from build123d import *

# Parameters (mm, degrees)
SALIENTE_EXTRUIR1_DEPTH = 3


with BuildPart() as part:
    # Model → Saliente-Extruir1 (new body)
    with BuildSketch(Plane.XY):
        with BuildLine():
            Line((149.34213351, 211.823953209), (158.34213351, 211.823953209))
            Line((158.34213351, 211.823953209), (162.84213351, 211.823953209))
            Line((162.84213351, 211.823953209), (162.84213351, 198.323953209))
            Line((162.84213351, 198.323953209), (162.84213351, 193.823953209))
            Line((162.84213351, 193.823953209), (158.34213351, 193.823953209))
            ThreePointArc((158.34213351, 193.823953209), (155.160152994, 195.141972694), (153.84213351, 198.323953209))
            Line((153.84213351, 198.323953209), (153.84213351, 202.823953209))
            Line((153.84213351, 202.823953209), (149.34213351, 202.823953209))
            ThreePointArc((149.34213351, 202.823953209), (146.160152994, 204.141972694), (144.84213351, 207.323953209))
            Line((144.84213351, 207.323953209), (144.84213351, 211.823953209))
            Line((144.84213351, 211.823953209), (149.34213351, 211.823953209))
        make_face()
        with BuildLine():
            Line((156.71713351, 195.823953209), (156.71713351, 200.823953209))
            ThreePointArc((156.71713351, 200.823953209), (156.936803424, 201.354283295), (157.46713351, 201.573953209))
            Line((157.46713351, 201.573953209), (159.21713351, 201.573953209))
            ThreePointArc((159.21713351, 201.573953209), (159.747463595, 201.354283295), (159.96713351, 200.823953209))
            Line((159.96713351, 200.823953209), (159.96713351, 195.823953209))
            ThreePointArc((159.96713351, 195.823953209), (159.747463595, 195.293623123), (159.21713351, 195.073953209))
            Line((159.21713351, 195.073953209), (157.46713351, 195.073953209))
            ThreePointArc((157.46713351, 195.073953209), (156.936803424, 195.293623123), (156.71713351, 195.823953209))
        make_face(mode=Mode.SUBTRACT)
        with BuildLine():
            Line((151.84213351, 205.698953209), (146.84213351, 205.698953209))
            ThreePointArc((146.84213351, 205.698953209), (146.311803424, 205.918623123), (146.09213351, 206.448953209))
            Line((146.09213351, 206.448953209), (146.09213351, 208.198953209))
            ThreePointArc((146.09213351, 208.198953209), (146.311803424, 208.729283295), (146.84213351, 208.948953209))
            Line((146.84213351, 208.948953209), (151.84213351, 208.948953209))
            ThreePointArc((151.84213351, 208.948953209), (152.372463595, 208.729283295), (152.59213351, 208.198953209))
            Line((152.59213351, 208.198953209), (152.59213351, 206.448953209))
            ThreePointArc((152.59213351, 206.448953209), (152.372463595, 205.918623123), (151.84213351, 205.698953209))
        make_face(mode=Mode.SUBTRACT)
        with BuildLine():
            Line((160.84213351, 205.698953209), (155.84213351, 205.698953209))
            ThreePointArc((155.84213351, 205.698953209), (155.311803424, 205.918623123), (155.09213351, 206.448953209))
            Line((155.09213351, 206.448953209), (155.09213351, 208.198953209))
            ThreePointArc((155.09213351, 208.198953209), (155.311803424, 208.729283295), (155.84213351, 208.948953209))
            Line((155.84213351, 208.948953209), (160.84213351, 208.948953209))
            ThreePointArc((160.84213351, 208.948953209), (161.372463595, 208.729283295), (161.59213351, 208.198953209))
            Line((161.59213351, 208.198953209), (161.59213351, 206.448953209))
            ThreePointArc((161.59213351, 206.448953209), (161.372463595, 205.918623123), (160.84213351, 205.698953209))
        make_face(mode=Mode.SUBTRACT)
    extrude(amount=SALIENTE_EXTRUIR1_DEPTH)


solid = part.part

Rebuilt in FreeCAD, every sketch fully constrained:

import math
import FreeCAD as App
import Part
import Sketcher

V = App.Vector
Q = App.Units.Quantity

doc = App.newDocument("Part")
body = doc.addObject("PartDesign::Body", "Body")

sketch1 = body.newObject("Sketcher::SketchObject", "Sketch")
sketch1.AttachmentSupport = (doc.getObject("XY_Plane"), [""])
sketch1.MapMode = "FlatFace"
sketch1.addGeometry(Part.LineSegment(V(162.8, 193.8, 0), V(162.8, 211.8, 0)), False)
sketch1.addGeometry(Part.LineSegment(V(162.8, 211.8, 0), V(144.8, 211.8, 0)), False)
sketch1.addGeometry(Part.LineSegment(V(144.8, 211.8, 0), V(144.8, 207.3, 0)), False)
sketch1.addGeometry(Part.ArcOfCircle(Part.Circle(V(149.3, 207.3, 0), V(0, 0, 1), 4.5), math.radians(180), math.radians(270)), False)
sketch1.addGeometry(Part.LineSegment(V(149.3, 202.8, 0), V(153.8, 202.8, 0)), False)
sketch1.addGeometry(Part.LineSegment(V(153.8, 202.8, 0), V(153.8, 198.3, 0)), False)
sketch1.addGeometry(Part.ArcOfCircle(Part.Circle(V(158.3, 198.3, 0), V(0, 0, 1), 4.5), math.radians(180), math.radians(270)), False)
sketch1.addGeometry(Part.LineSegment(V(158.3, 193.8, 0), V(162.8, 193.8, 0)), False)
sketch1.addGeometry(Part.LineSegment(V(156.7, 195.8, 0), V(156.7, 200.8, 0)), False)
sketch1.addGeometry(Part.ArcOfCircle(Part.Circle(V(157.5, 200.8, 0), V(0, 0, 1), 0.8), math.radians(90), math.radians(180)), False)
sketch1.addGeometry(Part.LineSegment(V(157.5, 201.6, 0), V(159.2, 201.6, 0)), False)
sketch1.addGeometry(Part.ArcOfCircle(Part.Circle(V(159.2, 200.8, 0), V(0, 0, 1), 0.8), math.radians(0), math.radians(90)), False)
sketch1.addGeometry(Part.LineSegment(V(160, 200.8, 0), V(160, 195.8, 0)), False)
sketch1.addGeometry(Part.ArcOfCircle(Part.Circle(V(159.2, 195.8, 0), V(0, 0, 1), 0.8), math.radians(-90), math.radians(0)), False)
sketch1.addGeometry(Part.LineSegment(V(159.2, 195.1, 0), V(157.5, 195.1, 0)), False)
sketch1.addGeometry(Part.ArcOfCircle(Part.Circle(V(157.5, 195.8, 0), V(0, 0, 1), 0.8), math.radians(180), math.radians(270)), False)
sketch1.addGeometry(Part.LineSegment(V(160.8, 205.7, 0), V(155.8, 205.7, 0)), False)
sketch1.addGeometry(Part.ArcOfCircle(Part.Circle(V(155.8, 206.4, 0), V(0, 0, 1), 0.8), math.radians(180), math.radians(270)), False)
sketch1.addGeometry(Part.LineSegment(V(155.1, 206.4, 0), V(155.1, 208.2, 0)), False)
sketch1.addGeometry(Part.ArcOfCircle(Part.Circle(V(155.8, 208.2, 0), V(0, 0, 1), 0.8), math.radians(90), math.radians(180)), False)
sketch1.addGeometry(Part.LineSegment(V(155.8, 208.9, 0), V(160.8, 208.9, 0)), False)
sketch1.addGeometry(Part.ArcOfCircle(Part.Circle(V(160.8, 208.2, 0), V(0, 0, 1), 0.8), math.radians(0), math.radians(90)), False)
sketch1.addGeometry(Part.LineSegment(V(161.6, 208.2, 0), V(161.6, 206.4, 0)), False)
sketch1.addGeometry(Part.ArcOfCircle(Part.Circle(V(160.8, 206.4, 0), V(0, 0, 1), 0.8), math.radians(-90), math.radians(0)), False)
sketch1.addGeometry(Part.LineSegment(V(151.8, 205.7, 0), V(146.8, 205.7, 0)), False)
sketch1.addGeometry(Part.ArcOfCircle(Part.Circle(V(146.8, 206.4, 0), V(0, 0, 1), 0.8), math.radians(180), math.radians(270)), False)
sketch1.addGeometry(Part.LineSegment(V(146.1, 206.4, 0), V(146.1, 208.2, 0)), False)
sketch1.addGeometry(Part.ArcOfCircle(Part.Circle(V(146.8, 208.2, 0), V(0, 0, 1), 0.8), math.radians(90), math.radians(180)), False)
sketch1.addGeometry(Part.LineSegment(V(146.8, 208.9, 0), V(151.8, 208.9, 0)), False)
sketch1.addGeometry(Part.ArcOfCircle(Part.Circle(V(151.8, 208.2, 0), V(0, 0, 1), 0.8), math.radians(0), math.radians(90)), False)
sketch1.addGeometry(Part.LineSegment(V(152.6, 208.2, 0), V(152.6, 206.4, 0)), False)
sketch1.addGeometry(Part.ArcOfCircle(Part.Circle(V(151.8, 206.4, 0), V(0, 0, 1), 0.8), math.radians(-90), math.radians(0)), False)
sketch1.addConstraint(Sketcher.Constraint("Coincident", 0, 2, 1, 1))
sketch1.addConstraint(Sketcher.Constraint("Coincident", 1, 2, 2, 1))
sketch1.addConstraint(Sketcher.Constraint("Tangent", 2, 2, 3, 1))
sketch1.addConstraint(Sketcher.Constraint("Tangent", 3, 2, 4, 1))
sketch1.addConstraint(Sketcher.Constraint("Coincident", 4, 2, 5, 1))
sketch1.addConstraint(Sketcher.Constraint("Tangent", 5, 2, 6, 1))
sketch1.addConstraint(Sketcher.Constraint("Tangent", 6, 2, 7, 1))
sketch1.addConstraint(Sketcher.Constraint("Coincident", 7, 2, 0, 1))
sketch1.addConstraint(Sketcher.Constraint("Tangent", 8, 2, 9, 2))
sketch1.addConstraint(Sketcher.Constraint("Tangent", 9, 1, 10, 1))
sketch1.addConstraint(Sketcher.Constraint("Tangent", 10, 2, 11, 2))
sketch1.addConstraint(Sketcher.Constraint("Tangent", 11, 1, 12, 1))
sketch1.addConstraint(Sketcher.Constraint("Tangent", 12, 2, 13, 2))
sketch1.addConstraint(Sketcher.Constraint("Tangent", 13, 1, 14, 1))
sketch1.addConstraint(Sketcher.Constraint("Tangent", 14, 2, 15, 2))
sketch1.addConstraint(Sketcher.Constraint("Tangent", 15, 1, 8, 1))
sketch1.addConstraint(Sketcher.Constraint("Tangent", 16, 2, 17, 2))
sketch1.addConstraint(Sketcher.Constraint("Tangent", 17, 1, 18, 1))
sketch1.addConstraint(Sketcher.Constraint("Tangent", 18, 2, 19, 2))
sketch1.addConstraint(Sketcher.Constraint("Tangent", 19, 1, 20, 1))
sketch1.addConstraint(Sketcher.Constraint("Tangent", 20, 2, 21, 2))
sketch1.addConstraint(Sketcher.Constraint("Tangent", 21, 1, 22, 1))
sketch1.addConstraint(Sketcher.Constraint("Tangent", 22, 2, 23, 2))
sketch1.addConstraint(Sketcher.Constraint("Tangent", 23, 1, 16, 1))
sketch1.addConstraint(Sketcher.Constraint("Tangent", 24, 2, 25, 2))
sketch1.addConstraint(Sketcher.Constraint("Tangent", 25, 1, 26, 1))
sketch1.addConstraint(Sketcher.Constraint("Tangent", 26, 2, 27, 2))
sketch1.addConstraint(Sketcher.Constraint("Tangent", 27, 1, 28, 1))
sketch1.addConstraint(Sketcher.Constraint("Tangent", 28, 2, 29, 2))
sketch1.addConstraint(Sketcher.Constraint("Tangent", 29, 1, 30, 1))
sketch1.addConstraint(Sketcher.Constraint("Tangent", 30, 2, 31, 2))
sketch1.addConstraint(Sketcher.Constraint("Tangent", 31, 1, 24, 1))
sketch1.addConstraint(Sketcher.Constraint("Vertical", 0))
sketch1.addConstraint(Sketcher.Constraint("Horizontal", 1))
sketch1.addConstraint(Sketcher.Constraint("Vertical", 2))
sketch1.addConstraint(Sketcher.Constraint("Horizontal", 4))
sketch1.addConstraint(Sketcher.Constraint("Vertical", 5))
sketch1.addConstraint(Sketcher.Constraint("Horizontal", 7))
sketch1.addConstraint(Sketcher.Constraint("Vertical", 8))
sketch1.addConstraint(Sketcher.Constraint("Horizontal", 10))
sketch1.addConstraint(Sketcher.Constraint("Vertical", 12))
sketch1.addConstraint(Sketcher.Constraint("Horizontal", 14))
sketch1.addConstraint(Sketcher.Constraint("Horizontal", 16))
sketch1.addConstraint(Sketcher.Constraint("Vertical", 18))
sketch1.addConstraint(Sketcher.Constraint("Horizontal", 20))
sketch1.addConstraint(Sketcher.Constraint("Vertical", 22))
sketch1.addConstraint(Sketcher.Constraint("Horizontal", 24))
sketch1.addConstraint(Sketcher.Constraint("Vertical", 26))
sketch1.addConstraint(Sketcher.Constraint("Horizontal", 28))
sketch1.addConstraint(Sketcher.Constraint("Vertical", 30))
sketch1.addConstraint(Sketcher.Constraint("Equal", 3, 6))
sketch1.addConstraint(Sketcher.Constraint("Equal", 9, 11))
sketch1.addConstraint(Sketcher.Constraint("Equal", 11, 13))
sketch1.addConstraint(Sketcher.Constraint("Equal", 13, 15))
sketch1.addConstraint(Sketcher.Constraint("Equal", 15, 17))
sketch1.addConstraint(Sketcher.Constraint("Equal", 17, 19))
sketch1.addConstraint(Sketcher.Constraint("Equal", 19, 21))
sketch1.addConstraint(Sketcher.Constraint("Equal", 21, 23))
sketch1.addConstraint(Sketcher.Constraint("Equal", 23, 25))
sketch1.addConstraint(Sketcher.Constraint("Equal", 25, 27))
sketch1.addConstraint(Sketcher.Constraint("Equal", 27, 29))
sketch1.addConstraint(Sketcher.Constraint("Equal", 29, 31))
sketch1.addConstraint(Sketcher.Constraint("Horizontal", 23, 3, 25, 3))
sketch1.addConstraint(Sketcher.Constraint("Horizontal", 21, 3, 27, 3))
sketch1.addConstraint(Sketcher.Constraint("Equal", 4, 7))
sketch1.addConstraint(Sketcher.Constraint("Equal", 20, 24))
sketch1.addConstraint(Sketcher.Constraint("Equal", 1, 0))
sketch1.addConstraint(Sketcher.Constraint("Equal", 7, 2))
sketch1.addConstraint(Sketcher.Constraint("Equal", 28, 8))
sketch1.addConstraint(Sketcher.Constraint("Equal", 14, 18))
sketch1.addConstraint(Sketcher.Constraint("Radius", 3, Q("4.5 mm")))
sketch1.addConstraint(Sketcher.Constraint("DistanceX", 1, 2, 1, 1, Q("18 mm")))
sketch1.addConstraint(Sketcher.Constraint("DistanceX", 16, 2, 16, 1, Q("5 mm")))
sketch1.addConstraint(Sketcher.Constraint("Radius", 9, Q("0.75 mm")))
sketch1.addConstraint(Sketcher.Constraint("DistanceX", 25, 3, 17, 3, Q("9 mm")))
sketch1.addConstraint(Sketcher.Constraint("DistanceX", 21, 3, 0, 2, Q("2 mm")))
sketch1.addConstraint(Sketcher.Constraint("DistanceY", 11, 3, 0, 2, Q("11 mm")))
sketch1.addConstraint(Sketcher.Constraint("DistanceX", 10, 1, 10, 2, Q("1.75 mm")))
sketch1.addConstraint(Sketcher.Constraint("DistanceX", 9, 3, 6, 3, Q("0.875 mm")))
sketch1.addConstraint(Sketcher.Constraint("DistanceY", 9, 3, 17, 3, Q("5.625 mm")))
sketch1.addConstraint(Sketcher.Constraint("DistanceX", -1, 1, 3, 3, Q("149.342134 mm")))
sketch1.addConstraint(Sketcher.Constraint("DistanceY", -1, 1, 3, 3, Q("207.323953 mm")))
pad1 = body.newObject("PartDesign::Pad", "Pad")
pad1.Profile = sketch1
pad1.Length = 3

doc.recompute()
